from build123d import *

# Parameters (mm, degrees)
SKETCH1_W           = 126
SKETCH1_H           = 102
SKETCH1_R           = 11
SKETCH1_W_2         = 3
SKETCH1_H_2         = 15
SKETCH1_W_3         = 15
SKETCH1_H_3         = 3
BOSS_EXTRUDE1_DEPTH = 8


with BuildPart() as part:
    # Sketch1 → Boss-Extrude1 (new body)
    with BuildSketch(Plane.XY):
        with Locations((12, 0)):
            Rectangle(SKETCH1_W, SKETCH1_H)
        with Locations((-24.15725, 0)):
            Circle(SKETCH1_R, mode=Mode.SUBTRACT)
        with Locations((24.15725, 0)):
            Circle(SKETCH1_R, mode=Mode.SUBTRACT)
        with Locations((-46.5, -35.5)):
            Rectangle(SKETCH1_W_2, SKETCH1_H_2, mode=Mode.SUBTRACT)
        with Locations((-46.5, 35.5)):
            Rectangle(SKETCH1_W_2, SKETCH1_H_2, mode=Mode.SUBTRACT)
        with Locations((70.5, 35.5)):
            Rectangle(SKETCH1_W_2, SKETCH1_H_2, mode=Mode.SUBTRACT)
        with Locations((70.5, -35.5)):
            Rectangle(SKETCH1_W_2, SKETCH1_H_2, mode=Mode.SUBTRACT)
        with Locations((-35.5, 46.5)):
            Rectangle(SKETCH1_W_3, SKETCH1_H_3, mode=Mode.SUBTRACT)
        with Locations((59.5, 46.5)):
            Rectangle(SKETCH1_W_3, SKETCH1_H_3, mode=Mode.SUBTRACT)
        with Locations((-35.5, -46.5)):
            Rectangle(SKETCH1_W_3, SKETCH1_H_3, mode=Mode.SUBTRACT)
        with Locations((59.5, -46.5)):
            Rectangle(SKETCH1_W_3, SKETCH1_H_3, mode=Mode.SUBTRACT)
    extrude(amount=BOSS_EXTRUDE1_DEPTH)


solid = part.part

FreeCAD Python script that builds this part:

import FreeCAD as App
import Part
import Sketcher
from FreeCAD import Vector

doc = App.newDocument("Part")
params = doc.addObject("Spreadsheet::Sheet", "Params")
for row, (alias, value) in enumerate([
    ("sketch1_diameter", "22 mm"),
    ("sketch1_width", "126 mm"),
    ("sketch1_width2", "15 mm"),
    ("sketch1_width3", "3 mm"),
    ("sketch1_height", "102 mm"),
    ("pad1_length", "8 mm"),
], start=1):
    params.set(f"A{row}", alias)
    params.set(f"B{row}", "=" + value)
    params.setAlias(f"B{row}", alias)

body = doc.addObject("PartDesign::Body", "Body")

sketch1 = body.newObject("Sketcher::SketchObject", "Sketch")
sketch1.AttachmentSupport = (doc.getObject("XY_Plane"), [""])
sketch1.MapMode = "FlatFace"
sketch1.addGeometry([
    Part.LineSegment(Vector(-51, 51, 0), Vector(-51, -51, 0)),
    Part.LineSegment(Vector(-51, -51, 0), Vector(75, -51, 0)),
    Part.LineSegment(Vector(75, -51, 0), Vector(75, 51, 0)),
    Part.LineSegment(Vector(75, 51, 0), Vector(-51, 51, 0)),
    Part.LineSegment(Vector(-28, -48, 0), Vector(-43, -48, 0)),
    Part.LineSegment(Vector(-43, -48, 0), Vector(-43, -45, 0)),
    Part.LineSegment(Vector(-43, -45, 0), Vector(-28, -45, 0)),
    Part.LineSegment(Vector(-28, -45, 0), Vector(-28, -48, 0)),
    Part.LineSegment(Vector(-45, -43, 0), Vector(-48, -43, 0)),
    Part.LineSegment(Vector(-48, -43, 0), Vector(-48, -28, 0)),
    Part.LineSegment(Vector(-48, -28, 0), Vector(-45, -28, 0)),
    Part.LineSegment(Vector(-45, -28, 0), Vector(-45, -43, 0)),
    Part.LineSegment(Vector(67, -48, 0), Vector(52, -48, 0)),
    Part.LineSegment(Vector(52, -48, 0), Vector(52, -45, 0)),
    Part.LineSegment(Vector(52, -45, 0), Vector(67, -45, 0)),
    Part.LineSegment(Vector(67, -45, 0), Vector(67, -48, 0)),
    Part.LineSegment(Vector(72, -43, 0), Vector(69, -43, 0)),
    Part.LineSegment(Vector(69, -43, 0), Vector(69, -28, 0)),
    Part.LineSegment(Vector(69, -28, 0), Vector(72, -28, 0)),
    Part.LineSegment(Vector(72, -28, 0), Vector(72, -43, 0)),
    Part.Circle(Vector(-24.2, 0, 0), Vector(0, 0, 1), 11),
    Part.LineSegment(Vector(-45, 28, 0), Vector(-48, 28, 0)),
    Part.LineSegment(Vector(-48, 28, 0), Vector(-48, 43, 0)),
    Part.LineSegment(Vector(-48, 43, 0), Vector(-45, 43, 0)),
    Part.LineSegment(Vector(-45, 43, 0), Vector(-45, 28, 0)),
    Part.LineSegment(Vector(-28, 45, 0), Vector(-43, 45, 0)),
    Part.LineSegment(Vector(-43, 45, 0), Vector(-43, 48, 0)),
    Part.LineSegment(Vector(-43, 48, 0), Vector(-28, 48, 0)),
    Part.LineSegment(Vector(-28, 48, 0), Vector(-28, 45, 0)),
    Part.Circle(Vector(24.2, 0, 0), Vector(0, 0, 1), 11),
    Part.LineSegment(Vector(72, 28, 0), Vector(69, 28, 0)),
    Part.LineSegment(Vector(69, 28, 0), Vector(69, 43, 0)),
    Part.LineSegment(Vector(69, 43, 0), Vector(72, 43, 0)),
    Part.LineSegment(Vector(72, 43, 0), Vector(72, 28, 0)),
    Part.LineSegment(Vector(67, 45, 0), Vector(52, 45, 0)),
    Part.LineSegment(Vector(52, 45, 0), Vector(52, 48, 0)),
    Part.LineSegment(Vector(52, 48, 0), Vector(67, 48, 0)),
    Part.LineSegment(Vector(67, 48, 0), Vector(67, 45, 0)),
], False)
sketch1.addConstraint([
    Sketcher.Constraint("Coincident", 0, 2, 1, 1),
    Sketcher.Constraint("Coincident", 1, 2, 2, 1),
    Sketcher.Constraint("Coincident", 2, 2, 3, 1),
    Sketcher.Constraint("Coincident", 3, 2, 0, 1),
    Sketcher.Constraint("Coincident", 4, 2, 5, 1),
    Sketcher.Constraint("Coincident", 5, 2, 6, 1),
    Sketcher.Constraint("Coincident", 6, 2, 7, 1),
    Sketcher.Constraint("Coincident", 7, 2, 4, 1),
    Sketcher.Constraint("Coincident", 8, 2, 9, 1),
    Sketcher.Constraint("Coincident", 9, 2, 10, 1),
    Sketcher.Constraint("Coincident", 10, 2, 11, 1),
    Sketcher.Constraint("Coincident", 11, 2, 8, 1),
    Sketcher.Constraint("Coincident", 12, 2, 13, 1),
    Sketcher.Constraint("Coincident", 13, 2, 14, 1),
    Sketcher.Constraint("Coincident", 14, 2, 15, 1),
    Sketcher.Constraint("Coincident", 15, 2, 12, 1),
    Sketcher.Constraint("Coincident", 16, 2, 17, 1),
    Sketcher.Constraint("Coincident", 17, 2, 18, 1),
    Sketcher.Constraint("Coincident", 18, 2, 19, 1),
    Sketcher.Constraint("Coincident", 19, 2, 16, 1),
    Sketcher.Constraint("Coincident", 21, 2, 22, 1),
    Sketcher.Constraint("Coincident", 22, 2, 23, 1),
    Sketcher.Constraint("Coincident", 23, 2, 24, 1),
    Sketcher.Constraint("Coincident", 24, 2, 21, 1),
    Sketcher.Constraint("Coincident", 25, 2, 26, 1),
    Sketcher.Constraint("Coincident", 26, 2, 27, 1),
    Sketcher.Constraint("Coincident", 27, 2, 28, 1),
    Sketcher.Constraint("Coincident", 28, 2, 25, 1),
    Sketcher.Constraint("Coincident", 30, 2, 31, 1),
    Sketcher.Constraint("Coincident", 31, 2, 32, 1),
    Sketcher.Constraint("Coincident", 32, 2, 33, 1),
    Sketcher.Constraint("Coincident", 33, 2, 30, 1),
    Sketcher.Constraint("Coincident", 34, 2, 35, 1),
    Sketcher.Constraint("Coincident", 35, 2, 36, 1),
    Sketcher.Constraint("Coincident", 36, 2, 37, 1),
    Sketcher.Constraint("Coincident", 37, 2, 34, 1),
    Sketcher.Constraint("Vertical", 0),
    Sketcher.Constraint("Horizontal", 1),
    Sketcher.Constraint("Vertical", 2),
    Sketcher.Constraint("Horizontal", 3),
    Sketcher.Constraint("Horizontal", 4),
    Sketcher.Constraint("Vertical", 5),
    Sketcher.Constraint("Horizontal", 6),
    Sketcher.Constraint("Vertical", 7),
    Sketcher.Constraint("Horizontal", 8),
    Sketcher.Constraint("Vertical", 9),
    Sketcher.Constraint("Horizontal", 10),
    Sketcher.Constraint("Vertical", 11),
    Sketcher.Constraint("Horizontal", 12),
    Sketcher.Constraint("Vertical", 13),
    Sketcher.Constraint("Horizontal", 14),
    Sketcher.Constraint("Vertical", 15),
    Sketcher.Constraint("Horizontal", 16),
    Sketcher.Constraint("Vertical", 17),
    Sketcher.Constraint("Horizontal", 18),
    Sketcher.Constraint("Vertical", 19),
    Sketcher.Constraint("Horizontal", 21),
    Sketcher.Constraint("Vertical", 22),
    Sketcher.Constraint("Horizontal", 23),
    Sketcher.Constraint("Vertical", 24),
    Sketcher.Constraint("Horizontal", 25),
    Sketcher.Constraint("Vertical", 26),
    Sketcher.Constraint("Horizontal", 27),
    Sketcher.Constraint("Vertical", 28),
    Sketcher.Constraint("Horizontal", 30),
    Sketcher.Constraint("Vertical", 31),
    Sketcher.Constraint("Horizontal", 32),
    Sketcher.Constraint("Vertical", 33),
    Sketcher.Constraint("Horizontal", 34),
    Sketcher.Constraint("Vertical", 35),
    Sketcher.Constraint("Horizontal", 36),
    Sketcher.Constraint("Vertical", 37),
    Sketcher.Constraint("Equal", 20, 29),
    Sketcher.Constraint("Symmetric", 20, 3, 29, 3, -1, 1),
    Sketcher.Constraint("Symmetric", 9, 2, 21, 2, -1),
    Sketcher.Constraint("Symmetric", 11, 2, 23, 2, -1),
    Sketcher.Constraint("Symmetric", 5, 2, 25, 2, -1),
    Sketcher.Constraint("Symmetric", 7, 2, 27, 2, -1),
    Sketcher.Constraint("Symmetric", 17, 2, 30, 2, -1),
    Sketcher.Constraint("Symmetric", 19, 2, 32, 2, -1),
    Sketcher.Constraint("Symmetric", 13, 2, 34, 2, -1),
    Sketcher.Constraint("Symmetric", 15, 2, 36, 2, -1),
    Sketcher.Constraint("PointOnObject", 20, 3, -1),
    Sketcher.Constraint("Horizontal", 7, 2, 12, 2),
    Sketcher.Constraint("Horizontal", 6, 2, 13, 2),
    Sketcher.Constraint("Horizontal", 11, 2, 16, 2),
    Sketcher.Constraint("Horizontal", 10, 2, 17, 2),
    Sketcher.Constraint("Equal", 6, 12),
    Sketcher.Constraint("Equal", 10, 16),
    Sketcher.Constraint("Equal", 32, 5),
    Sketcher.Constraint("Equal", 36, 9),
    Sketcher.Constraint("Diameter", 20, 22.0),
    Sketcher.Constraint("DistanceX", 1, 1, 1, 2, 126.0),
    Sketcher.Constraint("DistanceX", 4, 2, 4, 1, 15.0),
    Sketcher.Constraint("DistanceX", 8, 2, 8, 1, 3.0),
    Sketcher.Constraint("DistanceY", 0, 2, 0, 1, 102.0),
    Sketcher.Constraint("DistanceX", 0, 2, -1, 1, 51.0),
    Sketcher.Constraint("DistanceY", 0, 2, -1, 1, 51.0),
    Sketcher.Constraint("DistanceX", 4, 2, -1, 1, 43.0),
    Sketcher.Constraint("DistanceY", 4, 2, -1, 1, 48.0),
    Sketcher.Constraint("DistanceX", 8, 2, -1, 1, 48.0),
    Sketcher.Constraint("DistanceY", 8, 2, -1, 1, 43.0),
    Sketcher.Constraint("DistanceX", -1, 1, 12, 2, 52.0),
    Sketcher.Constraint("DistanceX", -1, 1, 16, 2, 69.0),
    Sketcher.Constraint("DistanceX", 20, 3, 29, 3, 48.3145),
])
sketch1.setExpression("Constraints[91]", "Params.sketch1_diameter")
sketch1.setExpression("Constraints[92]", "Params.sketch1_width")
sketch1.setExpression("Constraints[93]", "Params.sketch1_width2")
sketch1.setExpression("Constraints[94]", "Params.sketch1_width3")
sketch1.setExpression("Constraints[95]", "Params.sketch1_height")
pad1 = body.newObject("PartDesign::Pad", "Pad")
pad1.Profile = sketch1
pad1.setExpression("Length", "Params.pad1_length")

doc.recompute()
